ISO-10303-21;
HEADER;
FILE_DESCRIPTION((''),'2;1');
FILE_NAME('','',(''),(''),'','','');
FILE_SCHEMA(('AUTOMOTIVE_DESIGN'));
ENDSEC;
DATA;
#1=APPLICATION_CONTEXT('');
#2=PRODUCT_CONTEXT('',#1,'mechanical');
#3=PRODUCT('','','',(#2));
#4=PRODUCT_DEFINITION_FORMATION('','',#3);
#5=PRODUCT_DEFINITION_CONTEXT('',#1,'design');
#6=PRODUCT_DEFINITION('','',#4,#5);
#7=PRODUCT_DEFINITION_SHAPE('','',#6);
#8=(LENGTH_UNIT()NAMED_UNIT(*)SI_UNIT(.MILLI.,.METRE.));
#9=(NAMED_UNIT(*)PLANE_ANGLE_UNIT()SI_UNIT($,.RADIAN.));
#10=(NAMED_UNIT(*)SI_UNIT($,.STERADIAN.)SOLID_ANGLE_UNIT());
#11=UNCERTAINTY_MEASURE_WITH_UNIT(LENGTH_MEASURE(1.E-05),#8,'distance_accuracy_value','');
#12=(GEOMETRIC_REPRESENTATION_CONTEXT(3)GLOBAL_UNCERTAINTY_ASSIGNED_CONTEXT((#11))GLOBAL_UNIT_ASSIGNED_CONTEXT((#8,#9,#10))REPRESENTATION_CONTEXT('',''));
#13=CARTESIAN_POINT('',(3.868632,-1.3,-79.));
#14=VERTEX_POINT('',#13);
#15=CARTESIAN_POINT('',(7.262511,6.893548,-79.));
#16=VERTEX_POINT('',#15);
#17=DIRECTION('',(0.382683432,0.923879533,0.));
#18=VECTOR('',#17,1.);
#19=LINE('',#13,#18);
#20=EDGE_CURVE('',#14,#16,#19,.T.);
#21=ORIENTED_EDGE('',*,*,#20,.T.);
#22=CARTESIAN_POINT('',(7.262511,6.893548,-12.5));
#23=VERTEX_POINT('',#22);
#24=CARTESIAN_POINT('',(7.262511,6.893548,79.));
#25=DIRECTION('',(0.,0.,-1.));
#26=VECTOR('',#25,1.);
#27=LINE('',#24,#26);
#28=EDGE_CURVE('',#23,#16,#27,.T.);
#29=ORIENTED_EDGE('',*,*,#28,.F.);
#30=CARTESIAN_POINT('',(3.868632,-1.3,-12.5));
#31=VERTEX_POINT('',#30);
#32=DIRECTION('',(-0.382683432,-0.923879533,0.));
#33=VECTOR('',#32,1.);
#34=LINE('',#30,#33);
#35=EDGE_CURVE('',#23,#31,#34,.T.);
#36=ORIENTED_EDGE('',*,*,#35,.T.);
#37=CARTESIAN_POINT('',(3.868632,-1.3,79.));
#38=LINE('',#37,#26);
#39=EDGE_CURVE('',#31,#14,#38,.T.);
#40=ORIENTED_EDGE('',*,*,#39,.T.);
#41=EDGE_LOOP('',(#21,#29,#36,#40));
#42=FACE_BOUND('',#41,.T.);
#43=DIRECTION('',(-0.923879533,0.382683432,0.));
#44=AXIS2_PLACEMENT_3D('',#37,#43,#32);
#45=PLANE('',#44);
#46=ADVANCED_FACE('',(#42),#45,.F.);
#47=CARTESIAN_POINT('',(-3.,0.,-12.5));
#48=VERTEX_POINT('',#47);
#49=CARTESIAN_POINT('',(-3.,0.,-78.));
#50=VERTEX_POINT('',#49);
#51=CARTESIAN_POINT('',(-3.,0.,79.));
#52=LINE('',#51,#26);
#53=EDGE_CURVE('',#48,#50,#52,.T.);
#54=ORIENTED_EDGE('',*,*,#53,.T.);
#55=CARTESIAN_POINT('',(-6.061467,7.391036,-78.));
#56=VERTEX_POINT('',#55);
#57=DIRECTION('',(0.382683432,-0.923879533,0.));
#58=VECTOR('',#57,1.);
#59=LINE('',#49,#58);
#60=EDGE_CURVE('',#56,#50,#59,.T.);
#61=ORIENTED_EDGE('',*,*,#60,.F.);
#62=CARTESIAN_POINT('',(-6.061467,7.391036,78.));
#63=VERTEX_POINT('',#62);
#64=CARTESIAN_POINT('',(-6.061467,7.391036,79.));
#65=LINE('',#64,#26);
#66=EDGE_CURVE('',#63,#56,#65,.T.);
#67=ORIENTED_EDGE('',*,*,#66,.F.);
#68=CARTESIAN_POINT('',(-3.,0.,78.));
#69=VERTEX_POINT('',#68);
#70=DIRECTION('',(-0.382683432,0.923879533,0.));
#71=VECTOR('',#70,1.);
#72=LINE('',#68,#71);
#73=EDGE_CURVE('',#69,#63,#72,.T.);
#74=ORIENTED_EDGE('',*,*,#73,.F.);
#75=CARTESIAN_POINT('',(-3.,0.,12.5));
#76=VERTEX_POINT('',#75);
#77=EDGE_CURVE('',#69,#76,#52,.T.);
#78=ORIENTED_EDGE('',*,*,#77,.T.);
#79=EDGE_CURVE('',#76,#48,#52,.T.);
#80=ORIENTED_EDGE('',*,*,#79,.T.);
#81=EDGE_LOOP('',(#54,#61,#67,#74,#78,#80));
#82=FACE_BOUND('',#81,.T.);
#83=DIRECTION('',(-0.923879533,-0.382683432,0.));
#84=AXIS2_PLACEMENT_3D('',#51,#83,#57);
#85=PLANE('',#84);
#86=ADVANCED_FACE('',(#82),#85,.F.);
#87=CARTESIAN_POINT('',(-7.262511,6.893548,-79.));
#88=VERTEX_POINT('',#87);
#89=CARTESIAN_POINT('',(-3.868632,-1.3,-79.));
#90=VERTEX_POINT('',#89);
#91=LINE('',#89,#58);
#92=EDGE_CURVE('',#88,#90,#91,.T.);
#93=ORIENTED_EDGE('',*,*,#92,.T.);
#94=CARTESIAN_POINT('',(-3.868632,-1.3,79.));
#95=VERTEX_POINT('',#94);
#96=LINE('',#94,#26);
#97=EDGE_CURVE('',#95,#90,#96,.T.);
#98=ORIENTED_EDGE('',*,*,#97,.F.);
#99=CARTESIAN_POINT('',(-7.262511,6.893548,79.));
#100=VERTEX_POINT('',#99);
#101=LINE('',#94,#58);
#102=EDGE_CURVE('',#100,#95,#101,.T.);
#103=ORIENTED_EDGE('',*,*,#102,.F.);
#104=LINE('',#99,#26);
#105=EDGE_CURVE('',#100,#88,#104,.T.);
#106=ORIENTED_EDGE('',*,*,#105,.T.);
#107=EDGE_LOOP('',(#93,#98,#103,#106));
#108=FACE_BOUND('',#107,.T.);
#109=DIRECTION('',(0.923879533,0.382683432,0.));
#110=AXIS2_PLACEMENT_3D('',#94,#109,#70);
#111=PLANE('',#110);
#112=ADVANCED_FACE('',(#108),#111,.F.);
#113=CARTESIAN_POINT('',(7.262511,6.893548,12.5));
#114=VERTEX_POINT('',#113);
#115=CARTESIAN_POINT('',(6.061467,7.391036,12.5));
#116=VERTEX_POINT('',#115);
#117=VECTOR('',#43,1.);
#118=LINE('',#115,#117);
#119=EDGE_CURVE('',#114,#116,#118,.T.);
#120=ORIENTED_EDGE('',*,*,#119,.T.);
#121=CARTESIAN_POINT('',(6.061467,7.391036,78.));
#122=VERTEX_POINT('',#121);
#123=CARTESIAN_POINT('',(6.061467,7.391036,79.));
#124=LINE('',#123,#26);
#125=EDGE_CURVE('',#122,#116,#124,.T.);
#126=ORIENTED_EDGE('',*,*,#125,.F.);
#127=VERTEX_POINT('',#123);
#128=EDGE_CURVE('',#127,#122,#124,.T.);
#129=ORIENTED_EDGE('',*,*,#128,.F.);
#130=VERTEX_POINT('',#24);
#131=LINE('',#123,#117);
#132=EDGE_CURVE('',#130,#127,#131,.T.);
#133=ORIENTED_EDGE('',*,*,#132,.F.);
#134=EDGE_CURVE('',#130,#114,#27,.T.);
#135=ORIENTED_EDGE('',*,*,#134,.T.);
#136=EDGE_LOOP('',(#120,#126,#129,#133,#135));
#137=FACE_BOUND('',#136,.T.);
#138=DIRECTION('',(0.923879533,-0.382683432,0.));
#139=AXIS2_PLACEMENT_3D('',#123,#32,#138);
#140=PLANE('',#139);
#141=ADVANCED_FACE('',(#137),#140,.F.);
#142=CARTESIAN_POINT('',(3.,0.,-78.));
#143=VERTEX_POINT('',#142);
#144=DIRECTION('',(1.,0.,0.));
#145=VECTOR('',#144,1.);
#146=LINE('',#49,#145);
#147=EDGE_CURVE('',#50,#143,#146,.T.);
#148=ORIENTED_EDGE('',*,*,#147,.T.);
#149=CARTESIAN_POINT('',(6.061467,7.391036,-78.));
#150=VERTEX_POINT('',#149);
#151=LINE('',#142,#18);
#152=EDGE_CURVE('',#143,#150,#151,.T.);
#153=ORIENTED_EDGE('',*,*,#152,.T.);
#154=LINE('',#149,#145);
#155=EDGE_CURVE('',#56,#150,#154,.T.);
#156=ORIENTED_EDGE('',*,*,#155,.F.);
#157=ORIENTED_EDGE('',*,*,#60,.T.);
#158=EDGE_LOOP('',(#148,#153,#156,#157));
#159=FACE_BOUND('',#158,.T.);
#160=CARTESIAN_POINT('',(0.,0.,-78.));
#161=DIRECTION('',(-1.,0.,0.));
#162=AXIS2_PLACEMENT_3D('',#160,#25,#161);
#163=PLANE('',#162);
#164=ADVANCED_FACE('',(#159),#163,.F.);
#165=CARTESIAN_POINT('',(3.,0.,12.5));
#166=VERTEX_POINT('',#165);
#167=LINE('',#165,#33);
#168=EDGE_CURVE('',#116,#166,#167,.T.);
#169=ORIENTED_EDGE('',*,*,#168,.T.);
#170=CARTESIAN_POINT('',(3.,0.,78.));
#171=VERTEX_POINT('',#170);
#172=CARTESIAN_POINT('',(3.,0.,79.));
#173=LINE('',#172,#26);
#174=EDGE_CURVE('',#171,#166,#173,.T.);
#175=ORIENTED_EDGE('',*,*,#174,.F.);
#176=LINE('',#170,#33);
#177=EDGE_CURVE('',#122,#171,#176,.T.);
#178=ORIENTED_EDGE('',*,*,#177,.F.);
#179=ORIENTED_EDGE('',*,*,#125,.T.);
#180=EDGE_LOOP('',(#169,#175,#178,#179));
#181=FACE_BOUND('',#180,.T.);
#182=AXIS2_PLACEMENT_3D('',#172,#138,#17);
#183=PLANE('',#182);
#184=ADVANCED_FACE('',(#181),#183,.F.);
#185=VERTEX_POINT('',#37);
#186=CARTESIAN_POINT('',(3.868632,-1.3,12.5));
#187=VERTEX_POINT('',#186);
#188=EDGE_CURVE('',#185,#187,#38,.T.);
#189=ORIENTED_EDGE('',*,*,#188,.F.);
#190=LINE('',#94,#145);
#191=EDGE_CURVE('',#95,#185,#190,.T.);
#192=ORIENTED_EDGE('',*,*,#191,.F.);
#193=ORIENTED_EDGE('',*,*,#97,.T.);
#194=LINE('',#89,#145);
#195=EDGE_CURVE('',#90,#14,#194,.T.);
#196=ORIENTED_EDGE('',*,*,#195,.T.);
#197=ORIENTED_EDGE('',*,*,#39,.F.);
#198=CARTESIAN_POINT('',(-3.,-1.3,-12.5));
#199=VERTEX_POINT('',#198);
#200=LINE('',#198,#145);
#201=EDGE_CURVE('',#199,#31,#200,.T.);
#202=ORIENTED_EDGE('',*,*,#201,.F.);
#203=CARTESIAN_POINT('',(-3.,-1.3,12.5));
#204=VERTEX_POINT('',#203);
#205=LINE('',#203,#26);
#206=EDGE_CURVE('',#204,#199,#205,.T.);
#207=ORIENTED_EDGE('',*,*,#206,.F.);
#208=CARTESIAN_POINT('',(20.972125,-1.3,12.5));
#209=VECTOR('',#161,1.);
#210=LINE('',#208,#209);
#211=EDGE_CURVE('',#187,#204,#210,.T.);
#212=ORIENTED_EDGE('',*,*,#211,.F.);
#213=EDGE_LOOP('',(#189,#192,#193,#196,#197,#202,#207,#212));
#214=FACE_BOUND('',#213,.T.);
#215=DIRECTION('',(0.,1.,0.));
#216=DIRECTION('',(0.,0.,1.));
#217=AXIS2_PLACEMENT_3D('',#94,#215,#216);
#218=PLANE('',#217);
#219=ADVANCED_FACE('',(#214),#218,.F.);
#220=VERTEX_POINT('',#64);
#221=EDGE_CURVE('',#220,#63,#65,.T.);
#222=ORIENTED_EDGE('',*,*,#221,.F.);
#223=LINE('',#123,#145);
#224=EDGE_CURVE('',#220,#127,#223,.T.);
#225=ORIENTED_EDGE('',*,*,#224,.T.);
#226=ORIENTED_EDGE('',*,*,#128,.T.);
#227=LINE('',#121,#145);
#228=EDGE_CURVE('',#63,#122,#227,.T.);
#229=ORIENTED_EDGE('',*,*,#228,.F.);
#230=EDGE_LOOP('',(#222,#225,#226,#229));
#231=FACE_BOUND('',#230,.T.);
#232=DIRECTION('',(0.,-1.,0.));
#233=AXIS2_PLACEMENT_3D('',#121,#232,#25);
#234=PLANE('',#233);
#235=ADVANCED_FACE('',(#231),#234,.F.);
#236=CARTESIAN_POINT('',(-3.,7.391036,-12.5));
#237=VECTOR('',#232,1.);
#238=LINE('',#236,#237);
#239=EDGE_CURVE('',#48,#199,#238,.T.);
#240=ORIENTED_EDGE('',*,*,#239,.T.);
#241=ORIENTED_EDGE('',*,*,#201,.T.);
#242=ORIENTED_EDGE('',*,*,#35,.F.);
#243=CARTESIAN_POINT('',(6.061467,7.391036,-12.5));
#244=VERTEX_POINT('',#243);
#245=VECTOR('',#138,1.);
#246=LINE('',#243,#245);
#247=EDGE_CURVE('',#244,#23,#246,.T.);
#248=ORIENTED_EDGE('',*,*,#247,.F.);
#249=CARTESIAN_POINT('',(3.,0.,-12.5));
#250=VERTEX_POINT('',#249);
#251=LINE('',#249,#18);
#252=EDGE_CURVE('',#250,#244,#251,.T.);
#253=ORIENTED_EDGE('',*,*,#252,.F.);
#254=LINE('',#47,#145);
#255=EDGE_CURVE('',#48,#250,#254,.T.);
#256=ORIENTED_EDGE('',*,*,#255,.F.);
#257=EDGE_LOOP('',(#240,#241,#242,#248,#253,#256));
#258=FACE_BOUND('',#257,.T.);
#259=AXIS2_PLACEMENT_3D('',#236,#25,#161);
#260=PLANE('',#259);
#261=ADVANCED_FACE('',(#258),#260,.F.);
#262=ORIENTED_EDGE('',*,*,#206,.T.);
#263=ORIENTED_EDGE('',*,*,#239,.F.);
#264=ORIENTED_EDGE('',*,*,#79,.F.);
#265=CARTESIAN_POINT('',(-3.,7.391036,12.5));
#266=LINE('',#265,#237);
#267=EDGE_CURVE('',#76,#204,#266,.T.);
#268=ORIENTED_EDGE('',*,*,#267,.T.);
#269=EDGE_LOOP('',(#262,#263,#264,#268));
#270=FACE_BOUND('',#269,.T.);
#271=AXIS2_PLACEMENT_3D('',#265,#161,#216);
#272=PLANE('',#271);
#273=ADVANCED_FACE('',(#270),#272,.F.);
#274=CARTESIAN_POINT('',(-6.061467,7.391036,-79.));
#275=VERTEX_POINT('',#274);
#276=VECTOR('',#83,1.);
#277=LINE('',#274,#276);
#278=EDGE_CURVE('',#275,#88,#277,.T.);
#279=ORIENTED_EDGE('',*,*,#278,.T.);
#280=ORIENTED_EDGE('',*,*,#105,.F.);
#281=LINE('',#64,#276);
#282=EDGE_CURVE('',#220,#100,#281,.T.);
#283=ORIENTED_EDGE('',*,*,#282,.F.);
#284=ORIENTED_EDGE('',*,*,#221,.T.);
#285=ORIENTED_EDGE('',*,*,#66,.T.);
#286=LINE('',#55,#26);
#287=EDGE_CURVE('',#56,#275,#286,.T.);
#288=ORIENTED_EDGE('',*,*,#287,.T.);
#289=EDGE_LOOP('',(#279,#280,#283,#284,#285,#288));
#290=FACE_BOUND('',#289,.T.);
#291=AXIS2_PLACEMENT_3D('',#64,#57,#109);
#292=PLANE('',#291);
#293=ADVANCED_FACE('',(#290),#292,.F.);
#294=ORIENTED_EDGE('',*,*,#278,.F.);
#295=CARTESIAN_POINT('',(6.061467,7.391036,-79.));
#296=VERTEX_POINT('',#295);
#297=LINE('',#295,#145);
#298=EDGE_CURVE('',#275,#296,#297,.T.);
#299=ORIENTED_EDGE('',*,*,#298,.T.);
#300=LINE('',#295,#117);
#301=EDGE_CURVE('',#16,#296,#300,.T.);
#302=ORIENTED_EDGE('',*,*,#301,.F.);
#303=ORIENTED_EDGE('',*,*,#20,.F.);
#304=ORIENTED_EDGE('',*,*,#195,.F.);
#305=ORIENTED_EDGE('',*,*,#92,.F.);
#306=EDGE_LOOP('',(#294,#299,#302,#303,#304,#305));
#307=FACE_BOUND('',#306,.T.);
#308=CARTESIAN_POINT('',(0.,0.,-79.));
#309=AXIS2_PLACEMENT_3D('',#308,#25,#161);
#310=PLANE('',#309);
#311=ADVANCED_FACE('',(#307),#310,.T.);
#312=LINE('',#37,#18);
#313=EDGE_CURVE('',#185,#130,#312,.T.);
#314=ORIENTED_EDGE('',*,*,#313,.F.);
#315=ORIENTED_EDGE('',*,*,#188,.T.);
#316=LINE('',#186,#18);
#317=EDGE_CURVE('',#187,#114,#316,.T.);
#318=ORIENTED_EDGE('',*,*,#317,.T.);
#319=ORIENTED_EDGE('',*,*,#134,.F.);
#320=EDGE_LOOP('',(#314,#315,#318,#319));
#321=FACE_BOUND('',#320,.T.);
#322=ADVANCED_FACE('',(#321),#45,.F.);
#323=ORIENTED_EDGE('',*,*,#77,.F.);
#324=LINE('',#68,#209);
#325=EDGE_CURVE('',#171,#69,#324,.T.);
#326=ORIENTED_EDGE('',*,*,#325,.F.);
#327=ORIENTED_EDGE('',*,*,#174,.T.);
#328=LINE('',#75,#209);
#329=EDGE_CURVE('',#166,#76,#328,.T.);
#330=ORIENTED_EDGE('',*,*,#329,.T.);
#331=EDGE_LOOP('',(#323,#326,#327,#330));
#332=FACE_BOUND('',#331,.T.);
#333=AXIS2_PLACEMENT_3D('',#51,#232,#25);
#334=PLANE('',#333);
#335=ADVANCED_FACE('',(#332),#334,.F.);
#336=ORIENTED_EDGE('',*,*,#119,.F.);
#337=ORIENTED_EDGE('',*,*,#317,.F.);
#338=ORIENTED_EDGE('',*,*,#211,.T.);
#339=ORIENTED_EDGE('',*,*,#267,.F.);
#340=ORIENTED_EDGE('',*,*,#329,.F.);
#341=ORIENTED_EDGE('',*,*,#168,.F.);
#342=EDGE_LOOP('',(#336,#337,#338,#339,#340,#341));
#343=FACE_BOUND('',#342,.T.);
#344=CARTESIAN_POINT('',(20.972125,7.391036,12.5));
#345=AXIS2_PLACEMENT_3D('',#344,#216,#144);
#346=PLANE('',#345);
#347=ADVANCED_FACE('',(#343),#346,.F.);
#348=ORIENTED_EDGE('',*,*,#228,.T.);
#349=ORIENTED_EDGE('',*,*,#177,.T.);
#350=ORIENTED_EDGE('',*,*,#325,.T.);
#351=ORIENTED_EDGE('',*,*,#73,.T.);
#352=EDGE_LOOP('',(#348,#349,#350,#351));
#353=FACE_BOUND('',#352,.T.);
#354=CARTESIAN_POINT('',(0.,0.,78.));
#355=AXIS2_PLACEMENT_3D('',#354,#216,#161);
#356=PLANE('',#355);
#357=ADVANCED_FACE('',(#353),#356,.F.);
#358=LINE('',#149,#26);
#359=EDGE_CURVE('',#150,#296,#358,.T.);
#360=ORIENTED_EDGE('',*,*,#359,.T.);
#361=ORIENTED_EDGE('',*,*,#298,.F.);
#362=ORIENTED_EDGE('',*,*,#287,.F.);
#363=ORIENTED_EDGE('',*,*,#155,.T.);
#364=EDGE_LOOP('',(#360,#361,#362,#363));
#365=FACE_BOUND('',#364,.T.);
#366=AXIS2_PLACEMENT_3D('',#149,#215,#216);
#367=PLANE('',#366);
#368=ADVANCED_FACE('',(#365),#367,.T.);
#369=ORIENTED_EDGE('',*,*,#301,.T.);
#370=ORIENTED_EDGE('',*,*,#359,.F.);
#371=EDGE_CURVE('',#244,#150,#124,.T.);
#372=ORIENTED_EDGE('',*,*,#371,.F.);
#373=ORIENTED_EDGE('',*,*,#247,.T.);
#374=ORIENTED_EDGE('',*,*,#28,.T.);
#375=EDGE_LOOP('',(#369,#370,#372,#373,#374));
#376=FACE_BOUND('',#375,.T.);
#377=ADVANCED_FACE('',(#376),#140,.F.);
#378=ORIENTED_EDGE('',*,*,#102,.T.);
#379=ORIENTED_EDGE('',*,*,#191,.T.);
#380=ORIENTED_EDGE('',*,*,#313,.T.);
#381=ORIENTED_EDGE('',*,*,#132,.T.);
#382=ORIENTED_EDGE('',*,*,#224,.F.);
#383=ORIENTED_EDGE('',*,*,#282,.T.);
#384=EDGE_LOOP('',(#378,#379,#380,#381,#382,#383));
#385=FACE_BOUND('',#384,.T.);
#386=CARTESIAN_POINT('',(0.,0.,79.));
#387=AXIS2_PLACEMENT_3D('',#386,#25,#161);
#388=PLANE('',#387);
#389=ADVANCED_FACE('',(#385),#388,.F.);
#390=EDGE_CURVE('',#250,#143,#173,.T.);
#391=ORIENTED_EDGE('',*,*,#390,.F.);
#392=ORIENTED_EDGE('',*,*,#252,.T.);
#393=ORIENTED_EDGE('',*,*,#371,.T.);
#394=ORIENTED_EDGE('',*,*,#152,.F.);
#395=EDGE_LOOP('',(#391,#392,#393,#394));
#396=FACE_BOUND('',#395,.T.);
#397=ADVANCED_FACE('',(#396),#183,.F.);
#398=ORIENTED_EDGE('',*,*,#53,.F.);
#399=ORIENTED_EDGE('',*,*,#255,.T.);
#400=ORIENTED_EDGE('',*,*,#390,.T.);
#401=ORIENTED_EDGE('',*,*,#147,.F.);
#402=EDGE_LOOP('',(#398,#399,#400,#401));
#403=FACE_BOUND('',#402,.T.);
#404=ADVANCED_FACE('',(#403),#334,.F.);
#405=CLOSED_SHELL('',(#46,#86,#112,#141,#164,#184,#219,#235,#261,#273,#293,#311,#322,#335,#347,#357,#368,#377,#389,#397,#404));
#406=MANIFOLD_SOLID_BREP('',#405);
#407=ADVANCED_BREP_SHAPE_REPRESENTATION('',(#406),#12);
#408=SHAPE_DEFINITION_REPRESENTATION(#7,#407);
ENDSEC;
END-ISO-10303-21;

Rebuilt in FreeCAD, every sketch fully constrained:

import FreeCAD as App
import Part
import Sketcher

V = App.Vector
Q = App.Units.Quantity

doc = App.newDocument("Part")
body = doc.addObject("PartDesign::Body", "Body")

# Sketch on XY plane
sketch1 = doc.addObject("Sketcher::SketchObject", "Sketch")
body.addObject(sketch1)
sketch1.AttachmentSupport = (doc.XY_Plane, [""])
sketch1.MapMode = "FlatFace"
sketch1.addGeometry([
    Part.LineSegment(V(3, 0, 0), V(-3, 0, 0)),  # 0
    Part.LineSegment(V(-3, 0, 0), V(-6.061467, 7.391036, 0)),  # 1
    Part.LineSegment(V(-6.061467, 7.391036, 0), V(-7.262511, 6.893548, 0)),  # 2
    Part.LineSegment(V(-7.262511, 6.893548, 0), V(-3.868632, -1.3, 0)),  # 3
    Part.LineSegment(V(-3.868632, -1.3, 0), V(3.868632, -1.3, 0)),  # 4
    Part.LineSegment(V(3.868632, -1.3, 0), V(7.262511, 6.893548, 0)),  # 5
    Part.LineSegment(V(7.262511, 6.893548, 0), V(6.061467, 7.391036, 0)),  # 6
    Part.LineSegment(V(6.061467, 7.391036, 0), V(3, 0, 0)),  # 7
], False)
sketch1.addConstraint([
    Sketcher.Constraint("Coincident", 0, 2, 1, 1),
    Sketcher.Constraint("Coincident", 1, 2, 2, 1),
    Sketcher.Constraint("Coincident", 2, 2, 3, 1),
    Sketcher.Constraint("Coincident", 3, 2, 4, 1),
    Sketcher.Constraint("Coincident", 4, 2, 5, 1),
    Sketcher.Constraint("Coincident", 5, 2, 6, 1),
    Sketcher.Constraint("Coincident", 6, 2, 7, 1),
    Sketcher.Constraint("Coincident", 7, 2, 0, 1),
    Sketcher.Constraint("Horizontal", 0),
    Sketcher.Constraint("Horizontal", 4),
    Sketcher.Constraint("Symmetric", 0, 2, 7, 2, -1, 1),
    Sketcher.Constraint("Symmetric", 2, 2, 5, 2, -2),
    Sketcher.Constraint("Symmetric", 1, 2, 6, 2, -2),
    Sketcher.Constraint("Perpendicular", 1, 2),
    Sketcher.Constraint("Perpendicular", 2, 3),
    Sketcher.Constraint("Perpendicular", 5, 6),
    Sketcher.Constraint("DistanceX", 0, 2, 0, 1, 6.0),
    Sketcher.Constraint("Distance", 1, 8.0),
    Sketcher.Constraint("Angle", 1, Q("112.5 deg")),
    Sketcher.Constraint("Distance", 2, 1.3),
    Sketcher.Constraint("DistanceY", 3, 2, -1, 1, 1.3),
])
pad1 = doc.addObject("PartDesign::Pad", "Pad")
body.addObject(pad1)
pad1.Profile = sketch1
pad1.Length = 158
pad1.Midplane = True

# Sketch on XY plane
sketch2 = doc.addObject("Sketcher::SketchObject", "Sketch001")
body.addObject(sketch2)
sketch2.AttachmentSupport = (doc.XY_Plane, [""])
sketch2.MapMode = "FlatFace"
sketch2.AttachmentOffset = App.Placement(V(0, 0, -79), App.Rotation())
sketch2.addGeometry([
    Part.LineSegment(V(-6.061467, 7.391036, 0), V(6.061467, 7.391036, 0)),  # 0
    Part.LineSegment(V(6.061467, 7.391036, 0), V(7.262511, 6.893548, 0)),  # 1
    Part.LineSegment(V(7.262511, 6.893548, 0), V(3.868632, -1.3, 0)),  # 2
    Part.LineSegment(V(3.868632, -1.3, 0), V(-3.868632, -1.3, 0)),  # 3
    Part.LineSegment(V(-3.868632, -1.3, 0), V(-7.262511, 6.893548, 0)),  # 4
    Part.LineSegment(V(-7.262511, 6.893548, 0), V(-6.061467, 7.391036, 0)),  # 5
], False)
sketch2.addConstraint([
    Sketcher.Constraint("Coincident", 0, 2, 1, 1),
    Sketcher.Constraint("Coincident", 1, 2, 2, 1),
    Sketcher.Constraint("Coincident", 2, 2, 3, 1),
    Sketcher.Constraint("Coincident", 3, 2, 4, 1),
    Sketcher.Constraint("Coincident", 4, 2, 5, 1),
    Sketcher.Constraint("Coincident", 5, 2, 0, 1),
    Sketcher.Constraint("Horizontal", 0),
    Sketcher.Constraint("Horizontal", 3),
    Sketcher.Constraint("Symmetric", 1, 2, 4, 2, -2),
    Sketcher.Constraint("Perpendicular", 1, 2),
    Sketcher.Constraint("Perpendicular", 4, 5),
    Sketcher.Constraint("Equal", 2, 4),
    Sketcher.Constraint("Angle", 1, Q("-22.5 deg")),
    Sketcher.Constraint("Distance", 1, 1.3),
    Sketcher.Constraint("DistanceY", 2, 2, -1, 1, 1.3),
    Sketcher.Constraint("DistanceX", 3, 2, 0, 2, 9.9301),
    Sketcher.Constraint("DistanceX", 0, 1, 0, 2, 12.122935),
])
pad2 = doc.addObject("PartDesign::Pad", "Pad001")
body.addObject(pad2)
pad2.Profile = sketch2
pad2.Length = 1
doc.recompute()

mirrored = doc.addObject("PartDesign::Mirrored", "Mirrored")
body.addObject(mirrored)
mirrored.Originals = [pad2]
mirrored.MirrorPlane = (doc.XY_Plane, [""])
body.Tip = mirrored

# Sketch on XZ plane
sketch3 = doc.addObject("Sketcher::SketchObject", "Sketch002")
body.addObject(sketch3)
sketch3.AttachmentSupport = (doc.XZ_Plane, [""])
sketch3.MapMode = "FlatFace"
sketch3.AttachmentOffset = App.Placement(V(0, 0, 1.3), App.Rotation())
sketch3.addGeometry([
    Part.LineSegment(V(-3, 12.5, 0), V(-3, -12.5, 0)),
    Part.LineSegment(V(-3, -12.5, 0), V(20.972125, -12.5, 0)),
    Part.LineSegment(V(20.972125, -12.5, 0), V(20.972125, 12.5, 0)),
    Part.LineSegment(V(20.972125, 12.5, 0), V(-3, 12.5, 0)),
], False)
sketch3.addConstraint([
    Sketcher.Constraint("Coincident", 0, 2, 1, 1),
    Sketcher.Constraint("Coincident", 1, 2, 2, 1),
    Sketcher.Constraint("Coincident", 2, 2, 3, 1),
    Sketcher.Constraint("Coincident", 3, 2, 0, 1),
    Sketcher.Constraint("Vertical", 0),
    Sketcher.Constraint("Horizontal", 1),
    Sketcher.Constraint("Vertical", 2),
    Sketcher.Constraint("Horizontal", 3),
    Sketcher.Constraint("DistanceY", 0, 2, 0, 1, 25.0),
    Sketcher.Constraint("DistanceX", 0, 2, -1, 1, 3.0),
    Sketcher.Constraint("DistanceY", 0, 2, -1, 1, 12.5),
    Sketcher.Constraint("DistanceX", 1, 1, 1, 2, 23.972125),
])
pocket1 = doc.addObject("PartDesign::Pocket", "Pocket")
body.addObject(pocket1)
pocket1.Profile = sketch3
pocket1.Type = "ThroughAll"

doc.recompute()
